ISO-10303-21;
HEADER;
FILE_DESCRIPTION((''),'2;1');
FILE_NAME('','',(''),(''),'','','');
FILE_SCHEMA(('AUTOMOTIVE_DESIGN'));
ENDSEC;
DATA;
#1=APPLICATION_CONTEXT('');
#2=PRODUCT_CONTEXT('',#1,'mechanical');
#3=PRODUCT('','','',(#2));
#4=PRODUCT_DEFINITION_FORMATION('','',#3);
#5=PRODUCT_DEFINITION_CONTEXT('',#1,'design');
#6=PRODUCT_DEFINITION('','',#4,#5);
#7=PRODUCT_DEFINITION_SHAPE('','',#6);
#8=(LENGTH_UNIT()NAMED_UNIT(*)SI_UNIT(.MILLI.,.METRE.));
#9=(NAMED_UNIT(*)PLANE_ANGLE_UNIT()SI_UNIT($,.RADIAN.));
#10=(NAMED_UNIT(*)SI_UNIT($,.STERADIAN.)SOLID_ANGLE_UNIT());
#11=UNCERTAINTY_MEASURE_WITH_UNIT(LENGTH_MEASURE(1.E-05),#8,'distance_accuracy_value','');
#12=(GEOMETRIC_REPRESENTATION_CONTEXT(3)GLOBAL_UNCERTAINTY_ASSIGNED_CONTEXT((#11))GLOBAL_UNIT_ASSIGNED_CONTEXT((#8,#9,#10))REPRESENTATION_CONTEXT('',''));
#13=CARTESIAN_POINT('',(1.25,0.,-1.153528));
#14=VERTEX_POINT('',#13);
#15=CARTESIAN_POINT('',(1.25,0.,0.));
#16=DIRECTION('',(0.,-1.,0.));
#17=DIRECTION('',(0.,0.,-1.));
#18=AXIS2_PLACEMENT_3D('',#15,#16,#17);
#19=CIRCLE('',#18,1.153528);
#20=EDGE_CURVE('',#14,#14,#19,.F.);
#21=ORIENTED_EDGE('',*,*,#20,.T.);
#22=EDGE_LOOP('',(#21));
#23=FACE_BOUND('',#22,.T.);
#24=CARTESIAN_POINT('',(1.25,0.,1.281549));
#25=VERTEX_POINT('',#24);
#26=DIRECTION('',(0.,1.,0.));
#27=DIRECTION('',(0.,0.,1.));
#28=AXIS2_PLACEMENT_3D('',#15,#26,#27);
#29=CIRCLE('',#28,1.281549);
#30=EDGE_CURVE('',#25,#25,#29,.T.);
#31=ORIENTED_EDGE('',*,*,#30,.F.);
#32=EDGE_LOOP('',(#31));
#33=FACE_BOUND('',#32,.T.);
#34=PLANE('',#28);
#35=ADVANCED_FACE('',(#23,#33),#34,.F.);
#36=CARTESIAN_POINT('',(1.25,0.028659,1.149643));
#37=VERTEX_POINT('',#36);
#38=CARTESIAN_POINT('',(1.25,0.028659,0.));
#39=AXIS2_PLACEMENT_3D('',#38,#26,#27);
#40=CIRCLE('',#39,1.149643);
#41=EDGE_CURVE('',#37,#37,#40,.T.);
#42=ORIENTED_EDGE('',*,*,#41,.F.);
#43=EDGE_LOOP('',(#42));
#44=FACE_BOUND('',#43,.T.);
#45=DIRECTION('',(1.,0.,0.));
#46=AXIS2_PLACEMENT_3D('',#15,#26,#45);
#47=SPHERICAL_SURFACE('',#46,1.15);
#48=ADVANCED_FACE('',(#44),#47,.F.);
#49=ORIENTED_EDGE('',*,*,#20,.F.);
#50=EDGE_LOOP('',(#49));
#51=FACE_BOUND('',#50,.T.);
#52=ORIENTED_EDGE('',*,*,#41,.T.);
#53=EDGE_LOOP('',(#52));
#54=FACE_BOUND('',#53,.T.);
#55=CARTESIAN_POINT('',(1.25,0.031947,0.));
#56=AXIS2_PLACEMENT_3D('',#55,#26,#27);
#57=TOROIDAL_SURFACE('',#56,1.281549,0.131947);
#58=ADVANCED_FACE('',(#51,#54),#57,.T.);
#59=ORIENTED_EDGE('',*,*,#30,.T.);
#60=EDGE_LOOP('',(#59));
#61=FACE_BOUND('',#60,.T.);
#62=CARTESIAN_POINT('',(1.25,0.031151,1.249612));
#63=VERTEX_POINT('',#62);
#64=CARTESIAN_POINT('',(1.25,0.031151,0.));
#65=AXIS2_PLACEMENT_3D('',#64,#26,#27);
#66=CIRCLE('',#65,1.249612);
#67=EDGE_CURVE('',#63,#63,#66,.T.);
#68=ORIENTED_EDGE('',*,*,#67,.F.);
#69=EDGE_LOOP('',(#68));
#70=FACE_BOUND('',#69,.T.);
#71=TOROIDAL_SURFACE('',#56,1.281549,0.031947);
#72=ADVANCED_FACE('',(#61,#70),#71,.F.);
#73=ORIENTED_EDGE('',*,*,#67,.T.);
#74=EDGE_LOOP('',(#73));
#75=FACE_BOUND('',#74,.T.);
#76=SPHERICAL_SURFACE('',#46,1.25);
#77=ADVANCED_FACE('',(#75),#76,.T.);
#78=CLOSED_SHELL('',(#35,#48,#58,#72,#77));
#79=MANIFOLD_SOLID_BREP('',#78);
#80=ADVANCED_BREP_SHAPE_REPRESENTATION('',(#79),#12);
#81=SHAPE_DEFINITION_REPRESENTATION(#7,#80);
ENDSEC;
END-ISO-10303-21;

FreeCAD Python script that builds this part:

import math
import FreeCAD as App
import Part
import Sketcher
Q = App.Units.Quantity


def faces_at(feature, points):
    """Names of the faces that lie closest to the given points."""
    faces = feature.Shape.Faces
    near = lambda p: min(range(len(faces)), key=lambda i: faces[i].distToShape(Part.Vertex(*p))[0])
    return sorted({f"Face{near(p) + 1}" for p in points})

doc = App.newDocument("Part")
params = doc.addObject("Spreadsheet::Sheet", "Params")
for row, (alias, value) in enumerate([
    ("sketch1_radius", "1.25 mm"),
    ("revolution_angle", "360 deg"),
    ("thickness_wall", "0.1 mm"),
], start=1):
    params.set(f"A{row}", alias)
    params.set(f"B{row}", "=" + value)
    params.setAlias(f"B{row}", alias)

body = doc.addObject("PartDesign::Body", "Body")

# Sketch on XY plane
sketch1 = body.newObject("Sketcher::SketchObject", "Sketch")
sketch1.AttachmentSupport = (doc.getObject("XY_Plane"), [""])
sketch1.MapMode = "FlatFace"
sketch1.addGeometry(Part.LineSegment(App.Vector(1.25, 1.25, 0), App.Vector(1.25, 0, 0)), False)
sketch1.addGeometry(Part.LineSegment(App.Vector(1.25, 0, 0), App.Vector(2.532, 0, 0)), False)
sketch1.addGeometry(Part.ArcOfCircle(Part.Circle(App.Vector(2.532, 0.032, 0), App.Vector(0, 0, 1), 0.032), math.radians(-179), math.radians(-90)), False)
sketch1.addGeometry(Part.ArcOfCircle(Part.Circle(App.Vector(1.25, 0, 0), App.Vector(0, 0, 1), 1.25), math.radians(1), math.radians(90)), False)
sketch1.addGeometry(Part.LineSegment(App.Vector(1.25, 1.25, 0), App.Vector(1.25, 0, 0)), True)  # axis
sketch1.addConstraint(Sketcher.Constraint("Coincident", 0, 2, 1, 1))
sketch1.addConstraint(Sketcher.Constraint("Tangent", 1, 2, 2, 2))
sketch1.addConstraint(Sketcher.Constraint("Tangent", 2, 1, 3, 1))
sketch1.addConstraint(Sketcher.Constraint("Coincident", 3, 2, 0, 1))
sketch1.addConstraint(Sketcher.Constraint("Vertical", 0))
sketch1.addConstraint(Sketcher.Constraint("Horizontal", 1))
sketch1.addConstraint(Sketcher.Constraint("Vertical", 4))
sketch1.addConstraint(Sketcher.Constraint("Coincident", 0, 2, 3, 3))
sketch1.addConstraint(Sketcher.Constraint("Coincident", 4, 1, 3, 2))
sketch1.addConstraint(Sketcher.Constraint("PointOnObject", 3, 3, -1))
sketch1.addConstraint(Sketcher.Constraint("PointOnObject", 4, 2, -1))
sketch1.addConstraint(Sketcher.Constraint("Radius", 3, Q("1.25 mm")))
sketch1.addConstraint(Sketcher.Constraint("DistanceX", -1, 1, 3, 3, Q("1.25 mm")))
sketch1.addConstraint(Sketcher.Constraint("Radius", 2, Q("0.031947 mm")))
sketch1.setExpression("Constraints[11]", "Params.sketch1_radius")
revolution = body.newObject("PartDesign::Revolution", "Revolution")
revolution.Profile = sketch1
revolution.ReferenceAxis = (sketch1, ["Axis0"])
revolution.setExpression("Angle", "Params.revolution_angle")
doc.recompute()

thickness = body.newObject("PartDesign::Thickness", "Thickness")
thickness.Base = (revolution, faces_at(revolution, [(1.25, 0, 0)]))
thickness.setExpression("Value", "Params.thickness_wall")
thickness.Reversed = True
thickness.Join = "Intersection"

doc.recompute()
